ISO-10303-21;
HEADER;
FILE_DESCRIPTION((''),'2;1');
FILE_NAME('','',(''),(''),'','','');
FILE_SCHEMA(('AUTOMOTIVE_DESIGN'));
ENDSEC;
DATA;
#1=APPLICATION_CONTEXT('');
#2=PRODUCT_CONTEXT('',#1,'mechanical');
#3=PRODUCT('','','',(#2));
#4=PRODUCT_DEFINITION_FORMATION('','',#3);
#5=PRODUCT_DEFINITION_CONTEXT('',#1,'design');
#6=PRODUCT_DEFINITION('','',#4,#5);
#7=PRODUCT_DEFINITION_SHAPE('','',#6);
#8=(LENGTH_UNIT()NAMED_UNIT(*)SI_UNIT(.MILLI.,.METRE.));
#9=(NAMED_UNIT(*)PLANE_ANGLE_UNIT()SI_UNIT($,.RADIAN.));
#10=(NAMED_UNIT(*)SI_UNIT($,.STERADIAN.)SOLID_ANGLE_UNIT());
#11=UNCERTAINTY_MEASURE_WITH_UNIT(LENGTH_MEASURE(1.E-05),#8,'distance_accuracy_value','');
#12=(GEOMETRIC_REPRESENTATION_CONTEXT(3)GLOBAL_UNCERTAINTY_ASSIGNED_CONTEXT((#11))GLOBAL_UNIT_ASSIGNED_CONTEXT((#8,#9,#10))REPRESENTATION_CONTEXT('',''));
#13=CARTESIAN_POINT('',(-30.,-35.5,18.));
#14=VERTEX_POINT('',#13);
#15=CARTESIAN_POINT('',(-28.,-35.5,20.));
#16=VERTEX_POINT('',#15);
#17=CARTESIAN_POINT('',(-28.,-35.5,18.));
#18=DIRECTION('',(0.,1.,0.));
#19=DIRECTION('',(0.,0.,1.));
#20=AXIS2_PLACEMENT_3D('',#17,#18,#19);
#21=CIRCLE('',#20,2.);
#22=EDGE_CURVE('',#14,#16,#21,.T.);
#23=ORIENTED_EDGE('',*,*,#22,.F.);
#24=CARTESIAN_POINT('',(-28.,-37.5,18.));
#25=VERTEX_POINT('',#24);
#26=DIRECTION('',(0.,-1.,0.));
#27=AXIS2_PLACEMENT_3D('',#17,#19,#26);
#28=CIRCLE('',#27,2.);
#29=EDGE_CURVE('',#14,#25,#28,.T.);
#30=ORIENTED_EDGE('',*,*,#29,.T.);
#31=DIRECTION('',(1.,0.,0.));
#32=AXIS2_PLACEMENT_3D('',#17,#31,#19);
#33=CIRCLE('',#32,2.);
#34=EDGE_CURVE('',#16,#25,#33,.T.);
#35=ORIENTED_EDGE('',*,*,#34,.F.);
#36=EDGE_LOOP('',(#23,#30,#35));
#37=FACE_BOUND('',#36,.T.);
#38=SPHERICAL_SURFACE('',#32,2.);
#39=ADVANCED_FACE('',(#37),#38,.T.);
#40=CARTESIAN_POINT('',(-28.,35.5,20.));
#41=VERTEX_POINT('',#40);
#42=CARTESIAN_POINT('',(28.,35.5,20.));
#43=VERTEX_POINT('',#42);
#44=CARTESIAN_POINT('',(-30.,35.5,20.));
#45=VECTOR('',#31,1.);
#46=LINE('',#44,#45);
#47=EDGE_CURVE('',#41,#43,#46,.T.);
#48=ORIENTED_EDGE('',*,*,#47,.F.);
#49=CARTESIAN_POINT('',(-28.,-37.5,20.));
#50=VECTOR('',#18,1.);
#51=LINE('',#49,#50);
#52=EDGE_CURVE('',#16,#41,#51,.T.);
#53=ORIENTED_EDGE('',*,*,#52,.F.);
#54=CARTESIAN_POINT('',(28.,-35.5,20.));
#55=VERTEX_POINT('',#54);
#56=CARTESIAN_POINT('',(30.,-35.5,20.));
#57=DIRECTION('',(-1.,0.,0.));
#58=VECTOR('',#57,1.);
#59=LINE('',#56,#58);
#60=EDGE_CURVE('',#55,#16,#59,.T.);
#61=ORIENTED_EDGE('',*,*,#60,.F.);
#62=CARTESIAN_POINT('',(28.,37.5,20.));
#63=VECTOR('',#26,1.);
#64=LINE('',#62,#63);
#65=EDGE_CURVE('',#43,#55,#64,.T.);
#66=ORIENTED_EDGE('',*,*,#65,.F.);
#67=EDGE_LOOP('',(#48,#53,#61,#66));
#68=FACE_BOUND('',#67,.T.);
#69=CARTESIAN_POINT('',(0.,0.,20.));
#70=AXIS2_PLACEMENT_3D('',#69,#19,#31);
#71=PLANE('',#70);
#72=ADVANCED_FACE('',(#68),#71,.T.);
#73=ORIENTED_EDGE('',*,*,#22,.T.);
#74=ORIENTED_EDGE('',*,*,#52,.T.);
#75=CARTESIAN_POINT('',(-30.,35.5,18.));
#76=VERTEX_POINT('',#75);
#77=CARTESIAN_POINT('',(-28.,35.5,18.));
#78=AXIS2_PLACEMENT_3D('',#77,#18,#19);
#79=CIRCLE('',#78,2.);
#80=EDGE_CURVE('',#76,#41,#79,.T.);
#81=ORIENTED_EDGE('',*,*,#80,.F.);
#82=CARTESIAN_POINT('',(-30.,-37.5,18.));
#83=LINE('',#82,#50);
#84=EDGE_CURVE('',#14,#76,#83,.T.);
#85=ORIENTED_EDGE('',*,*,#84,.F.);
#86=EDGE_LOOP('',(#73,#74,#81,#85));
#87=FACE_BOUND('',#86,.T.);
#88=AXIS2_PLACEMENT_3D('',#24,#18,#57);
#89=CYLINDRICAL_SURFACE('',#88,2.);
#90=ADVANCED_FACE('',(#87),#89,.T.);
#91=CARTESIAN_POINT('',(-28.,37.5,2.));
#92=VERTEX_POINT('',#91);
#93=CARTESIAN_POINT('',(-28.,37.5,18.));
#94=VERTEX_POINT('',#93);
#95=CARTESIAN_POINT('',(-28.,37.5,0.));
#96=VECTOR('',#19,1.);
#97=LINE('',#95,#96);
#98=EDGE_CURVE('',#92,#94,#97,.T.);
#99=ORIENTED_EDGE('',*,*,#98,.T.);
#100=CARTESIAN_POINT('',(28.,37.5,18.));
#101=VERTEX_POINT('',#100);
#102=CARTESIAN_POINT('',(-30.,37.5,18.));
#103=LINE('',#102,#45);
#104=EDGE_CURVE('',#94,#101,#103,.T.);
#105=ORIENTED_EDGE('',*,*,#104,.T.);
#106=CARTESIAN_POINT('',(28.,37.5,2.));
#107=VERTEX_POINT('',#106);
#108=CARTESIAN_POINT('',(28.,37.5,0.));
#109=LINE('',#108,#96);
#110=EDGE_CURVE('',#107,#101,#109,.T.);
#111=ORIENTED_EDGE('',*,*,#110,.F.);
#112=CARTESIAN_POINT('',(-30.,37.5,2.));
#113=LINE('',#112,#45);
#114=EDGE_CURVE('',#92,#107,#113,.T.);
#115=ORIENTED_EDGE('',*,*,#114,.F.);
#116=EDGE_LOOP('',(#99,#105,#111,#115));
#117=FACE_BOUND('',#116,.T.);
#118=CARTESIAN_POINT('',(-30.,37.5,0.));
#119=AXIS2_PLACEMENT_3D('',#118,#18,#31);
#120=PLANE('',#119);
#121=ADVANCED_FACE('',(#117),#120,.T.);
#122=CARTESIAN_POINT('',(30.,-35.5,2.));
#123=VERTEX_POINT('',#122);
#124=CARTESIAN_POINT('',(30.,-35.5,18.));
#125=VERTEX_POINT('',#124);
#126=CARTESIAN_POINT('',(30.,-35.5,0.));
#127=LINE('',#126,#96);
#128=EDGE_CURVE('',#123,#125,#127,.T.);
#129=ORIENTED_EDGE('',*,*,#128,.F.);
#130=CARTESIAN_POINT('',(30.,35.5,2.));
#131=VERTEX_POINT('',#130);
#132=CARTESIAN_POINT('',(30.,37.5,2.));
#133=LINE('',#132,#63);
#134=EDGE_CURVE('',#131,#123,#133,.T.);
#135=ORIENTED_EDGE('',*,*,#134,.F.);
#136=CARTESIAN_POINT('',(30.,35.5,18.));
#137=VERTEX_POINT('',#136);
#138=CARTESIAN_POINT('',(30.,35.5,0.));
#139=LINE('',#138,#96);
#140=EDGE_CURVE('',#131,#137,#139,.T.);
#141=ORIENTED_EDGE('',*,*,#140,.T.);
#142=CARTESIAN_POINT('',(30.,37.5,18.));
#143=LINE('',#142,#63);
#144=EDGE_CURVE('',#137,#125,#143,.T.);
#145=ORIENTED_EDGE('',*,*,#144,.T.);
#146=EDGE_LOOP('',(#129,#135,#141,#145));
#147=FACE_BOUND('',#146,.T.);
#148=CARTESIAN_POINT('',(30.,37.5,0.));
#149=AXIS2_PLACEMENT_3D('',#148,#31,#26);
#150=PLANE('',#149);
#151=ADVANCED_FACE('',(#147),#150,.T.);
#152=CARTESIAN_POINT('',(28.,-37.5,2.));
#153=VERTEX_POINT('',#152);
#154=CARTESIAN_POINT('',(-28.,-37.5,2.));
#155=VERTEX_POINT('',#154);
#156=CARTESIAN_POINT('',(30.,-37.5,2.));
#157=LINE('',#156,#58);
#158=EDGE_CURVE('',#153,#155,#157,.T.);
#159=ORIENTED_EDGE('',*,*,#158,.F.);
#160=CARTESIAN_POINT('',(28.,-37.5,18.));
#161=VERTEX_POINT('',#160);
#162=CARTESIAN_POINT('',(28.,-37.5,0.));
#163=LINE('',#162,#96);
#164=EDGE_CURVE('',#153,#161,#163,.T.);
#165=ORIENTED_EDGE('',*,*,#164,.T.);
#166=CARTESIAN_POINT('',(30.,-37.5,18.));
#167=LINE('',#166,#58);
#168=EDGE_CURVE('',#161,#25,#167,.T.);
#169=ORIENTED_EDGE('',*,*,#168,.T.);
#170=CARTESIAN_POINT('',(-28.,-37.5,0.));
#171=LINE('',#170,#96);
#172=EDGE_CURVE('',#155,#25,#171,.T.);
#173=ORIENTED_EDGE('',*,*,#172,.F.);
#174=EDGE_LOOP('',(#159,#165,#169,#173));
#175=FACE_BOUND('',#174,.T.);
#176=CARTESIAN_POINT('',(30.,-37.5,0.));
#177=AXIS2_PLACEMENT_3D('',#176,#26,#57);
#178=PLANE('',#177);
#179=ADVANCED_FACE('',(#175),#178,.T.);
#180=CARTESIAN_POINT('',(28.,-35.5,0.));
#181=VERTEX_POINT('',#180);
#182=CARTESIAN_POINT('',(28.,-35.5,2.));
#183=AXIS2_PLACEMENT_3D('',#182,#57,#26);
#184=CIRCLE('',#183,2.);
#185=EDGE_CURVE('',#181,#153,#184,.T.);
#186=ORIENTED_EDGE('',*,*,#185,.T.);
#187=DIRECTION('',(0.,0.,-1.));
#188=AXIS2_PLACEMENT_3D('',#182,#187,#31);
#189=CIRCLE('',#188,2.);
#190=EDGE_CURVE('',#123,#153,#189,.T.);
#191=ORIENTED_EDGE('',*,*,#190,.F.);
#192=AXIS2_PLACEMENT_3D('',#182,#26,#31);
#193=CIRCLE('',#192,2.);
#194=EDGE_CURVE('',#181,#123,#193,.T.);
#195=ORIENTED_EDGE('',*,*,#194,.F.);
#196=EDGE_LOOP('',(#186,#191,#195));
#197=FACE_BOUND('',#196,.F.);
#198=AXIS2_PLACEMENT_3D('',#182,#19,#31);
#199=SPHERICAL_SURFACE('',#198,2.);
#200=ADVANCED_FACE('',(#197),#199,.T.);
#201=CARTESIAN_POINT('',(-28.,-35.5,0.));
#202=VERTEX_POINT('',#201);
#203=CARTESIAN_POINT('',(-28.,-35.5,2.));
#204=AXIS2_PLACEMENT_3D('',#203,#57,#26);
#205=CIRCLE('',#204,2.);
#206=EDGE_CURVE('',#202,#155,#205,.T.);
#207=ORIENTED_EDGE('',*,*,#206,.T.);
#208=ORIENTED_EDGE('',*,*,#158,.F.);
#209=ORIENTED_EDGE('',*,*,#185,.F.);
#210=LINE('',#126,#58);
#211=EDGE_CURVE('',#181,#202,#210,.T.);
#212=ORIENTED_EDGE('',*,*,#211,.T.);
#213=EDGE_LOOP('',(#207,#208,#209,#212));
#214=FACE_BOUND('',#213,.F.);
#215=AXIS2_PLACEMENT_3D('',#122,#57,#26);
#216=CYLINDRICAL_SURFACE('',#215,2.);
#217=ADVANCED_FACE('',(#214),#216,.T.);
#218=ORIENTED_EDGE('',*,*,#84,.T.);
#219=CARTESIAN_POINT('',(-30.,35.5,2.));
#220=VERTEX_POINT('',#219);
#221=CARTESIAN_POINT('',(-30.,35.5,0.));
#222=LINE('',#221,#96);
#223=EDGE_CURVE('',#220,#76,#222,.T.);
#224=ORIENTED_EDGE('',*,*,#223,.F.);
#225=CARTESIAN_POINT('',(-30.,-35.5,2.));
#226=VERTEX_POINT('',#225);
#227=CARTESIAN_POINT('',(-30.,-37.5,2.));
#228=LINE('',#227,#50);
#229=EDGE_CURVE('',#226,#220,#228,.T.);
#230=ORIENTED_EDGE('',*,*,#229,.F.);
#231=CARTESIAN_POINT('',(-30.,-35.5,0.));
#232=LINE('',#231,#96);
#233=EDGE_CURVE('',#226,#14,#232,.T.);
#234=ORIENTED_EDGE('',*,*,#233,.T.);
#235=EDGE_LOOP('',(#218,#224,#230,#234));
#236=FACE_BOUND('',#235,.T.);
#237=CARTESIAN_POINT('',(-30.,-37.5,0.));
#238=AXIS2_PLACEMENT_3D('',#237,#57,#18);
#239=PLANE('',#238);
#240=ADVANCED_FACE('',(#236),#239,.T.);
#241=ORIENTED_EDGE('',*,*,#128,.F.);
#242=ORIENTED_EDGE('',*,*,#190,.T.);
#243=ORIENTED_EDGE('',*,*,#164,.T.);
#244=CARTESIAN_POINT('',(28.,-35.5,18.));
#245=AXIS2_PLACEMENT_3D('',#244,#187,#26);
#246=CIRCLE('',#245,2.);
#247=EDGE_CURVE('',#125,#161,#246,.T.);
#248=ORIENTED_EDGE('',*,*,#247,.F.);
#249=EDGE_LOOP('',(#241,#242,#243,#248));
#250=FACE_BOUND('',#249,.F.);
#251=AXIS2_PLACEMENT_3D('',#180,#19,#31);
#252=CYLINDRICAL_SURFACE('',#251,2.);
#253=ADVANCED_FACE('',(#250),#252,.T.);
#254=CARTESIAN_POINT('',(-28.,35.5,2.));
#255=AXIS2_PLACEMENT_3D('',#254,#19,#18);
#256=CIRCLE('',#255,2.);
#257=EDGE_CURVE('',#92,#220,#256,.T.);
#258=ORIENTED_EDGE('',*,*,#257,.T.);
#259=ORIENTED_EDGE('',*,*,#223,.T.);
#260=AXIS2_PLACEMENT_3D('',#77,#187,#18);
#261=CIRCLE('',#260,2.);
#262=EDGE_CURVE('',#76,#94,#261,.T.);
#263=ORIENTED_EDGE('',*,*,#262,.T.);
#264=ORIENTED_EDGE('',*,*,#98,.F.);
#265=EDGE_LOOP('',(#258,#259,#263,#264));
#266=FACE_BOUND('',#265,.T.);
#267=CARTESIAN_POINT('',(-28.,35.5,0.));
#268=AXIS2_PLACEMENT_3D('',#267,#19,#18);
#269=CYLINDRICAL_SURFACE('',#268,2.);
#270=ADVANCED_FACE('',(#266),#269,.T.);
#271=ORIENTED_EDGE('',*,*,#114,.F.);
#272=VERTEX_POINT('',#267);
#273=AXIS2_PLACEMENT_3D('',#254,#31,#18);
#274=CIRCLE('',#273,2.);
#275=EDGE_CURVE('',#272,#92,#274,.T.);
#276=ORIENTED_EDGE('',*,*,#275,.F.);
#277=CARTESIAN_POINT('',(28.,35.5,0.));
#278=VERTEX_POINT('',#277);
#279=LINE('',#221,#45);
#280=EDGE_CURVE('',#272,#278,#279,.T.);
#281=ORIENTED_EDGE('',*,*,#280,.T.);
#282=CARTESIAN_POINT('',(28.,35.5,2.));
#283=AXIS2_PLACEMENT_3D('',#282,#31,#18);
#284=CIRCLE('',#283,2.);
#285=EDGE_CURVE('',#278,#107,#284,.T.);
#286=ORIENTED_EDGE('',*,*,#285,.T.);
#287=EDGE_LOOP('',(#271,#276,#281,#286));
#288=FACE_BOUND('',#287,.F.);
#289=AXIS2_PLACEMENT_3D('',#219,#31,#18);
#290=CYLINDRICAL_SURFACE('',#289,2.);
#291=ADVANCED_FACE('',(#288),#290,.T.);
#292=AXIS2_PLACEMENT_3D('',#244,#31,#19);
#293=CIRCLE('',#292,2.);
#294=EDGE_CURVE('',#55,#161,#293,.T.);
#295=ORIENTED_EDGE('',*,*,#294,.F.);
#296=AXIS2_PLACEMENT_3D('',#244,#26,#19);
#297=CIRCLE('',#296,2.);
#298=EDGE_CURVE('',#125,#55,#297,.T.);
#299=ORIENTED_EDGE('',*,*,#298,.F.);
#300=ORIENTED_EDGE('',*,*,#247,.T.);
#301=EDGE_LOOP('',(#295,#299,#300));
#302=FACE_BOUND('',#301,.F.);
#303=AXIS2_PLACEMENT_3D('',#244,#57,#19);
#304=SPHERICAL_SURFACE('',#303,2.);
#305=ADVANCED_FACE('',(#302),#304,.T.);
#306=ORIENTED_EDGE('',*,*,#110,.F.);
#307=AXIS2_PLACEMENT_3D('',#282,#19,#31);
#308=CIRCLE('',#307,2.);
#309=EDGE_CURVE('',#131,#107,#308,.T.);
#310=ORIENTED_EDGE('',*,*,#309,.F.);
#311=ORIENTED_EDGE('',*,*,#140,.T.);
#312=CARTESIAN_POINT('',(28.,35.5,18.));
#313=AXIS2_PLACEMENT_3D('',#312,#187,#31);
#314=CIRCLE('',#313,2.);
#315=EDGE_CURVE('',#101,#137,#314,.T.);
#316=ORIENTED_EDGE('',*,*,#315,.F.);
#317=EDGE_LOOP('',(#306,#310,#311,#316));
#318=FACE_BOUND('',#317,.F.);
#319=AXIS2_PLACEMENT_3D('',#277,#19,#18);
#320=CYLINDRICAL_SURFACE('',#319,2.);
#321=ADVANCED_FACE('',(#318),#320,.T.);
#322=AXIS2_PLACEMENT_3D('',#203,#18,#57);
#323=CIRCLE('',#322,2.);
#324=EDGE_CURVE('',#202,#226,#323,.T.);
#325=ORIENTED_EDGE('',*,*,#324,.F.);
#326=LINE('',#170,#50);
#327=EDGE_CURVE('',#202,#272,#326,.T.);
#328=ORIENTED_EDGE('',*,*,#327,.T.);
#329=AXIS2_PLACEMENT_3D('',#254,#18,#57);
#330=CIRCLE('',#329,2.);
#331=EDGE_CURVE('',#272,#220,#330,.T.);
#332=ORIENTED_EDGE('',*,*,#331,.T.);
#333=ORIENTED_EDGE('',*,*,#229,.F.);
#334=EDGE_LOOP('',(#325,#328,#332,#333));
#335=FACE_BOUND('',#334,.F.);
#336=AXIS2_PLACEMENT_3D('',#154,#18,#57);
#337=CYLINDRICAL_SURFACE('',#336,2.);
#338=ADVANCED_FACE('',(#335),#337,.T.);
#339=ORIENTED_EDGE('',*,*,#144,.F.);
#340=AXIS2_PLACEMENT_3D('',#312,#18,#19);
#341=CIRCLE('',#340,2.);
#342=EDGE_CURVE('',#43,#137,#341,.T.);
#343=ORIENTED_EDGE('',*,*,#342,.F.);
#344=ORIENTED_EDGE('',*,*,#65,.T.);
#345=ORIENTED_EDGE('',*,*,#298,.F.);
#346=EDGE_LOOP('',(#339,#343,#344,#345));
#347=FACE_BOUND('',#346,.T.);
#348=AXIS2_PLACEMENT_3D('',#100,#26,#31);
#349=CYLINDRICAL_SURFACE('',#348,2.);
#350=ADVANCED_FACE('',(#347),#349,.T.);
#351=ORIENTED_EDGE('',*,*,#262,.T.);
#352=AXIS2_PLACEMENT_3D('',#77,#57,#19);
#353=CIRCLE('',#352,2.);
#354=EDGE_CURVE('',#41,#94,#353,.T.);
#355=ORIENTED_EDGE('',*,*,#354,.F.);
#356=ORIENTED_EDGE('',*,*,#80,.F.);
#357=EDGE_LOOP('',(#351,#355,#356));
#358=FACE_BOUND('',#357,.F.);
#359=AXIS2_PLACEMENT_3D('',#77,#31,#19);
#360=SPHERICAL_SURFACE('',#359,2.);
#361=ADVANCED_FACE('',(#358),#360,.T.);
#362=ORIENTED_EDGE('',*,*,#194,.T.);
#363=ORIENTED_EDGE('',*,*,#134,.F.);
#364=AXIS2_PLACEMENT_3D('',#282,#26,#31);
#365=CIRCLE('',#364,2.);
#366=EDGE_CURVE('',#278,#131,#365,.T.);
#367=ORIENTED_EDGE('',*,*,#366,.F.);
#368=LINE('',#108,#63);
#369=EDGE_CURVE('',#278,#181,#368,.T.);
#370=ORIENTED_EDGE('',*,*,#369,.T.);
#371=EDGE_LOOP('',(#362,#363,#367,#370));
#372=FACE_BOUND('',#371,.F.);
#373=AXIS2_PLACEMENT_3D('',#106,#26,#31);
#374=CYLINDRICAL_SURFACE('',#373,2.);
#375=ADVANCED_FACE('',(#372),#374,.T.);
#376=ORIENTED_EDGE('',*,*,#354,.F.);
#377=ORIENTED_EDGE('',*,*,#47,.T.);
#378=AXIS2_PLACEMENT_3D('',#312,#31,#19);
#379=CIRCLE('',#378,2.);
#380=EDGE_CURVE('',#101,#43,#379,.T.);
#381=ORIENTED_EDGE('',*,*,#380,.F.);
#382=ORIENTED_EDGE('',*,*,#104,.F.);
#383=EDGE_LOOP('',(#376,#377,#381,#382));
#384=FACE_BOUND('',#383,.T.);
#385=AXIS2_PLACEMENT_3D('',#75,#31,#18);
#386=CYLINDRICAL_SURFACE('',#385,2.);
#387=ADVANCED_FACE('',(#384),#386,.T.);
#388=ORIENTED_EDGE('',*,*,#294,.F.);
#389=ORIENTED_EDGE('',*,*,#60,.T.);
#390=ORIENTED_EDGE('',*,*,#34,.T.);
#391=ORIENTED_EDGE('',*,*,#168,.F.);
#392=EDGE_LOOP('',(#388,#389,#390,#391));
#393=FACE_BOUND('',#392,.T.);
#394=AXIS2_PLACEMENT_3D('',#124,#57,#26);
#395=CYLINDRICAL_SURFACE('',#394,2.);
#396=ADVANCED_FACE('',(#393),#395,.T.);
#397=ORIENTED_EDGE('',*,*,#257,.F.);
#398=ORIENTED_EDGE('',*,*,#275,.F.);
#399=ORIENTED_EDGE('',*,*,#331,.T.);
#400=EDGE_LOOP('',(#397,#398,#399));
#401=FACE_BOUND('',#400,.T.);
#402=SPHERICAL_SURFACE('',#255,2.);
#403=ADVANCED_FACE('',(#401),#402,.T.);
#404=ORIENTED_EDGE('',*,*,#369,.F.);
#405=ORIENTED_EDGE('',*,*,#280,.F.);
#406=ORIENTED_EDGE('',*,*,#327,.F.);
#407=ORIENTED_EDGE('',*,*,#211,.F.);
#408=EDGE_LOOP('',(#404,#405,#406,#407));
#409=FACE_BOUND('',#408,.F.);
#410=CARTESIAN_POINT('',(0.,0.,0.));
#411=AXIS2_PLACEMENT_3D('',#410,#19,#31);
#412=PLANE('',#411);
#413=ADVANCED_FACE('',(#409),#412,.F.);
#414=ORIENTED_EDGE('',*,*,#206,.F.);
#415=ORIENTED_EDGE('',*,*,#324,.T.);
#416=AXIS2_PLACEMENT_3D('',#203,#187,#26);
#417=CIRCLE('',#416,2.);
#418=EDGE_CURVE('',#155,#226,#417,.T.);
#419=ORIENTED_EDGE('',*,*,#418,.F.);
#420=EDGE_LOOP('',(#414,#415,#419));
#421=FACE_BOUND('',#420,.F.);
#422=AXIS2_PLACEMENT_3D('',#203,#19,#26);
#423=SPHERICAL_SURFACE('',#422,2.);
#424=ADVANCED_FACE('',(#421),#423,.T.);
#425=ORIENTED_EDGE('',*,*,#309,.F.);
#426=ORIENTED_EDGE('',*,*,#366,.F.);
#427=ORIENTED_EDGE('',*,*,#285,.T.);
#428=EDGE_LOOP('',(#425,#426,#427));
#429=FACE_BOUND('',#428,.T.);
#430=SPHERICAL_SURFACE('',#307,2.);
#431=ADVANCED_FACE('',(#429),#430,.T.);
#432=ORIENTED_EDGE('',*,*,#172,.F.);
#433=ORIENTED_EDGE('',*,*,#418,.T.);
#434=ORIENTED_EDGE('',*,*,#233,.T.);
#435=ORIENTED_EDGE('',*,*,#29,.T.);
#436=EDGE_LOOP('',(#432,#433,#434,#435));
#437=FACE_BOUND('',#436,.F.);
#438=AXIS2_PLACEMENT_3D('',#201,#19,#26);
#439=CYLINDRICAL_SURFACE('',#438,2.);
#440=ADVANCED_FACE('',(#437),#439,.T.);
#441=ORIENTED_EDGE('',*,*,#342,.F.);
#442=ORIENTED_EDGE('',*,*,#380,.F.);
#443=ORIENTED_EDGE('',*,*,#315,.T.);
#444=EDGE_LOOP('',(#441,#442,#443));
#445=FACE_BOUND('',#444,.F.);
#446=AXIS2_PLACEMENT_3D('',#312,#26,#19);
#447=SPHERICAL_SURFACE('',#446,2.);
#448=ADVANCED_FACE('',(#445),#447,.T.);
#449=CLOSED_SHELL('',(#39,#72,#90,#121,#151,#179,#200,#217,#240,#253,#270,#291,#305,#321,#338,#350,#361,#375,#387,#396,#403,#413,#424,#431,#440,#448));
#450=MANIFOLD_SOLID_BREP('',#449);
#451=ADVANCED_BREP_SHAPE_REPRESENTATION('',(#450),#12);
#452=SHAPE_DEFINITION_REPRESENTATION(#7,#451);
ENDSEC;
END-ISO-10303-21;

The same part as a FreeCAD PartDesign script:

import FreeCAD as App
import Part
import Sketcher
from FreeCAD import Vector
Q = App.Units.Quantity

doc = App.newDocument("Part")
body = doc.addObject("PartDesign::Body", "Body")

# Sketch on XY plane
sketch1 = body.newObject("Sketcher::SketchObject", "Sketch")
sketch1.AttachmentSupport = (doc.getObject("XY_Plane"), [""])
sketch1.MapMode = "FlatFace"
sketch1.addGeometry(Part.LineSegment(Vector(30, 38, 0), Vector(-30, 38, 0)), False)
sketch1.addGeometry(Part.LineSegment(Vector(-30, 38, 0), Vector(-30, -38, 0)), False)
sketch1.addGeometry(Part.LineSegment(Vector(-30, -38, 0), Vector(30, -38, 0)), False)
sketch1.addGeometry(Part.LineSegment(Vector(30, -38, 0), Vector(30, 38, 0)), False)
sketch1.addConstraint(Sketcher.Constraint("Coincident", 0, 2, 1, 1))
sketch1.addConstraint(Sketcher.Constraint("Coincident", 1, 2, 2, 1))
sketch1.addConstraint(Sketcher.Constraint("Coincident", 2, 2, 3, 1))
sketch1.addConstraint(Sketcher.Constraint("Coincident", 3, 2, 0, 1))
sketch1.addConstraint(Sketcher.Constraint("Horizontal", 0))
sketch1.addConstraint(Sketcher.Constraint("Vertical", 1))
sketch1.addConstraint(Sketcher.Constraint("Horizontal", 2))
sketch1.addConstraint(Sketcher.Constraint("Vertical", 3))
sketch1.addConstraint(Sketcher.Constraint("Symmetric", 0, 2, 2, 2, -1, 1))
sketch1.addConstraint(Sketcher.Constraint("DistanceX", 0, 2, 0, 1, Q("60 mm")))
sketch1.addConstraint(Sketcher.Constraint("DistanceY", 1, 2, 1, 1, Q("75 mm")))
pad1 = body.newObject("PartDesign::Pad", "Pad")
pad1.Profile = sketch1
pad1.Length = 20
doc.recompute()

fillet = body.newObject("PartDesign::Fillet", "Fillet")
fillet.Base = (pad1, ["Edge1"])
fillet.UseAllEdges = True
fillet.Radius = 2

doc.recompute()
